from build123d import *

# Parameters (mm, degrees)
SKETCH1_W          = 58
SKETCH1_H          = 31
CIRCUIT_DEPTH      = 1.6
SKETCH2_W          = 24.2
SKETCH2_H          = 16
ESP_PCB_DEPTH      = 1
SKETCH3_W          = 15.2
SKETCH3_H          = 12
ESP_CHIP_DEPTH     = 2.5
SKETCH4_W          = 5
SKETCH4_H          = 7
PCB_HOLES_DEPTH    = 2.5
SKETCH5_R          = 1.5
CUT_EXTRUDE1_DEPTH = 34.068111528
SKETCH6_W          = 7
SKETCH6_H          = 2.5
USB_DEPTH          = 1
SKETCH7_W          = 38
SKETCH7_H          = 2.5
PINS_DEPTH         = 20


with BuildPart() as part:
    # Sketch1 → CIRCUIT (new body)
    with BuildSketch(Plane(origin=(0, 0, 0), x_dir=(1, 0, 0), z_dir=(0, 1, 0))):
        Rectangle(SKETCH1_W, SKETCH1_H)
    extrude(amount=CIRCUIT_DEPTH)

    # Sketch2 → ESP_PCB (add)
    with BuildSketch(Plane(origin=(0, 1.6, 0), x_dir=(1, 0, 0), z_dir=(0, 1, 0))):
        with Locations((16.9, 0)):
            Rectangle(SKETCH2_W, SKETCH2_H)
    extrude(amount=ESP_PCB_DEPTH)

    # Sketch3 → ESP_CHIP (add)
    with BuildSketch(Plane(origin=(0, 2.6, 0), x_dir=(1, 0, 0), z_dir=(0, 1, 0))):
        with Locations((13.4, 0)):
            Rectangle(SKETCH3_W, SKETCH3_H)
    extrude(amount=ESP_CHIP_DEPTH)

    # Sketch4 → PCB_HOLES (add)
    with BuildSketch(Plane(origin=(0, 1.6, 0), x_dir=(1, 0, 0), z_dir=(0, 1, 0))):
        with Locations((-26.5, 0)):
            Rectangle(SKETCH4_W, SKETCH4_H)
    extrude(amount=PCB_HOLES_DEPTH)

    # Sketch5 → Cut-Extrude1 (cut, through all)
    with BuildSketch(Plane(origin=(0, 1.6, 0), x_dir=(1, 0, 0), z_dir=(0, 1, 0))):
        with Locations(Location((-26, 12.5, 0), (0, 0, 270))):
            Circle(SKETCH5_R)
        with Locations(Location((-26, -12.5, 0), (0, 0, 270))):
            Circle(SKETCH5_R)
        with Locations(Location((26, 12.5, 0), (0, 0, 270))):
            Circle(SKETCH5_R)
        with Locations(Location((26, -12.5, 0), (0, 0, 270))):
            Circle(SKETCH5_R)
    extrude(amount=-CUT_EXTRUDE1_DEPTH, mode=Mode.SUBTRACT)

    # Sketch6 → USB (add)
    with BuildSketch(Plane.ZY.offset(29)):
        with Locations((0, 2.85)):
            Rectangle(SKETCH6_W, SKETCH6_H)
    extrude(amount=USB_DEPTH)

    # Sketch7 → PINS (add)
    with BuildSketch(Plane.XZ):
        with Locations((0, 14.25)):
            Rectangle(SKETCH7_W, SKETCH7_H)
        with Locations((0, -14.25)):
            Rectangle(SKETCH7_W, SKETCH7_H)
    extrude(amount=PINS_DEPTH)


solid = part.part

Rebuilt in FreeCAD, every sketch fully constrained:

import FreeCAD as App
import Part
import Sketcher

doc = App.newDocument("Part")
body = doc.addObject("PartDesign::Body", "Body")

# Sketch on XZ plane
sketch1 = body.newObject("Sketcher::SketchObject", "Sketch")
sketch1.AttachmentSupport = (doc.getObject("XZ_Plane"), [""])
sketch1.MapMode = "FlatFace"
sketch1.addGeometry([
    Part.LineSegment(App.Vector(-29, -16, 0), App.Vector(-29, 16, 0)),
    Part.LineSegment(App.Vector(-29, 16, 0), App.Vector(29, 16, 0)),
    Part.LineSegment(App.Vector(29, 16, 0), App.Vector(29, -16, 0)),
    Part.LineSegment(App.Vector(29, -16, 0), App.Vector(-29, -16, 0)),
], False)
sketch1.addConstraint([
    Sketcher.Constraint("Coincident", 0, 2, 1, 1),
    Sketcher.Constraint("Coincident", 1, 2, 2, 1),
    Sketcher.Constraint("Coincident", 2, 2, 3, 1),
    Sketcher.Constraint("Coincident", 3, 2, 0, 1),
    Sketcher.Constraint("Vertical", 0),
    Sketcher.Constraint("Horizontal", 1),
    Sketcher.Constraint("Vertical", 2),
    Sketcher.Constraint("Horizontal", 3),
    Sketcher.Constraint("Symmetric", 0, 2, 2, 2, -1, 1),
    Sketcher.Constraint("DistanceX", 1, 1, 1, 2, 58.0),
    Sketcher.Constraint("DistanceY", 0, 1, 0, 2, 31.0),
])
pad1 = body.newObject("PartDesign::Pad", "Pad")
pad1.Profile = sketch1
pad1.Length = 1.6
pad1.Reversed = True

# Sketch on XZ plane
sketch2 = body.newObject("Sketcher::SketchObject", "Sketch001")
sketch2.AttachmentSupport = (doc.getObject("XZ_Plane"), [""])
sketch2.MapMode = "FlatFace"
sketch2.AttachmentOffset = App.Placement(App.Vector(0, 0, -1.6), App.Rotation())
sketch2.addGeometry([
    Part.LineSegment(App.Vector(5, -8, 0), App.Vector(5, 8, 0)),
    Part.LineSegment(App.Vector(5, 8, 0), App.Vector(29, 8, 0)),
    Part.LineSegment(App.Vector(29, 8, 0), App.Vector(29, -8, 0)),
    Part.LineSegment(App.Vector(29, -8, 0), App.Vector(5, -8, 0)),
], False)
sketch2.addConstraint([
    Sketcher.Constraint("Coincident", 0, 2, 1, 1),
    Sketcher.Constraint("Coincident", 1, 2, 2, 1),
    Sketcher.Constraint("Coincident", 2, 2, 3, 1),
    Sketcher.Constraint("Coincident", 3, 2, 0, 1),
    Sketcher.Constraint("Vertical", 0),
    Sketcher.Constraint("Horizontal", 1),
    Sketcher.Constraint("Vertical", 2),
    Sketcher.Constraint("Horizontal", 3),
    Sketcher.Constraint("DistanceY", 0, 1, 0, 2, 16.0),
    Sketcher.Constraint("DistanceX", 1, 1, 1, 2, 24.2),
    Sketcher.Constraint("DistanceY", -1, 1, 0, 2, 8.0),
    Sketcher.Constraint("DistanceX", -1, 1, 1, 2, 29.0),
])
pad2 = body.newObject("PartDesign::Pad", "Pad001")
pad2.Profile = sketch2
pad2.Length = 1
pad2.Reversed = True

# Sketch on XZ plane
sketch3 = body.newObject("Sketcher::SketchObject", "Sketch002")
sketch3.AttachmentSupport = (doc.getObject("XZ_Plane"), [""])
sketch3.MapMode = "FlatFace"
sketch3.AttachmentOffset = App.Placement(App.Vector(0, 0, -2.6), App.Rotation())
sketch3.addGeometry([
    Part.LineSegment(App.Vector(6, -6, 0), App.Vector(6, 6, 0)),
    Part.LineSegment(App.Vector(6, 6, 0), App.Vector(21, 6, 0)),
    Part.LineSegment(App.Vector(21, 6, 0), App.Vector(21, -6, 0)),
    Part.LineSegment(App.Vector(21, -6, 0), App.Vector(6, -6, 0)),
], False)
sketch3.addConstraint([
    Sketcher.Constraint("Coincident", 0, 2, 1, 1),
    Sketcher.Constraint("Coincident", 1, 2, 2, 1),
    Sketcher.Constraint("Coincident", 2, 2, 3, 1),
    Sketcher.Constraint("Coincident", 3, 2, 0, 1),
    Sketcher.Constraint("Vertical", 0),
    Sketcher.Constraint("Horizontal", 1),
    Sketcher.Constraint("Vertical", 2),
    Sketcher.Constraint("Horizontal", 3),
    Sketcher.Constraint("DistanceY", 0, 1, 0, 2, 12.0),
    Sketcher.Constraint("DistanceX", 1, 1, 1, 2, 15.2),
    Sketcher.Constraint("DistanceY", -1, 1, 0, 2, 6.0),
    Sketcher.Constraint("DistanceX", -1, 1, 1, 2, 21.0),
])
pad3 = body.newObject("PartDesign::Pad", "Pad002")
pad3.Profile = sketch3
pad3.Length = 2.5
pad3.Reversed = True

# Sketch on XZ plane
sketch4 = body.newObject("Sketcher::SketchObject", "Sketch003")
sketch4.AttachmentSupport = (doc.getObject("XZ_Plane"), [""])
sketch4.MapMode = "FlatFace"
sketch4.AttachmentOffset = App.Placement(App.Vector(0, 0, -1.6), App.Rotation())
sketch4.addGeometry([
    Part.LineSegment(App.Vector(-29, -4, 0), App.Vector(-29, 4, 0)),
    Part.LineSegment(App.Vector(-29, 4, 0), App.Vector(-24, 4, 0)),
    Part.LineSegment(App.Vector(-24, 4, 0), App.Vector(-24, -4, 0)),
    Part.LineSegment(App.Vector(-24, -4, 0), App.Vector(-29, -4, 0)),
], False)
sketch4.addConstraint([
    Sketcher.Constraint("Coincident", 0, 2, 1, 1),
    Sketcher.Constraint("Coincident", 1, 2, 2, 1),
    Sketcher.Constraint("Coincident", 2, 2, 3, 1),
    Sketcher.Constraint("Coincident", 3, 2, 0, 1),
    Sketcher.Constraint("Vertical", 0),
    Sketcher.Constraint("Horizontal", 1),
    Sketcher.Constraint("Vertical", 2),
    Sketcher.Constraint("Horizontal", 3),
    Sketcher.Constraint("DistanceX", 1, 1, 1, 2, 5.0),
    Sketcher.Constraint("DistanceY", 0, 1, 0, 2, 7.0),
    Sketcher.Constraint("DistanceX", 0, 2, -1, 1, 29.0),
    Sketcher.Constraint("DistanceY", -1, 1, 0, 2, 3.5),
])
pad4 = body.newObject("PartDesign::Pad", "Pad003")
pad4.Profile = sketch4
pad4.Length = 2.5
pad4.Reversed = True

# Sketch on XZ plane
sketch5 = body.newObject("Sketcher::SketchObject", "Sketch004")
sketch5.AttachmentSupport = (doc.getObject("XZ_Plane"), [""])
sketch5.MapMode = "FlatFace"
sketch5.AttachmentOffset = App.Placement(App.Vector(0, 0, -1.6), App.Rotation())
sketch5.addGeometry([
    Part.Circle(App.Vector(-26, -12.5, 0), App.Vector(0, 0, 1), 1.5),
    Part.Circle(App.Vector(-26, 12.5, 0), App.Vector(0, 0, 1), 1.5),
    Part.Circle(App.Vector(26, -12.5, 0), App.Vector(0, 0, 1), 1.5),
    Part.Circle(App.Vector(26, 12.5, 0), App.Vector(0, 0, 1), 1.5),
], False)
sketch5.addConstraint([
    Sketcher.Constraint("Equal", 0, 1),
    Sketcher.Constraint("Equal", 1, 2),
    Sketcher.Constraint("Equal", 2, 3),
    Sketcher.Constraint("Symmetric", 1, 3, 2, 3, -1, 1),
    Sketcher.Constraint("Symmetric", 0, 3, 3, 3, -1, 1),
    Sketcher.Constraint("Symmetric", 0, 3, 2, 3, -2),
    Sketcher.Constraint("Diameter", 0, 3.0),
    Sketcher.Constraint("DistanceX", 0, 3, -1, 1, 26.0),
    Sketcher.Constraint("DistanceY", 0, 3, 1, 3, 25.0),
])
pocket1 = body.newObject("PartDesign::Pocket", "Pocket")
pocket1.Profile = sketch5
pocket1.Type = "ThroughAll"
pocket1.Reversed = True

# Sketch on YZ plane
sketch6 = body.newObject("Sketcher::SketchObject", "Sketch005")
sketch6.AttachmentSupport = (doc.getObject("YZ_Plane"), [""])
sketch6.MapMode = "FlatFace"
sketch6.AttachmentOffset = App.Placement(App.Vector(0, 0, -29), App.Rotation())
sketch6.addGeometry([
    Part.LineSegment(App.Vector(4.1, -3.5, 0), App.Vector(1.6, -3.5, 0)),
    Part.LineSegment(App.Vector(1.6, -3.5, 0), App.Vector(1.6, 3.5, 0)),
    Part.LineSegment(App.Vector(1.6, 3.5, 0), App.Vector(4.1, 3.5, 0)),
    Part.LineSegment(App.Vector(4.1, 3.5, 0), App.Vector(4.1, -3.5, 0)),
], False)
sketch6.addConstraint([
    Sketcher.Constraint("Coincident", 0, 2, 1, 1),
    Sketcher.Constraint("Coincident", 1, 2, 2, 1),
    Sketcher.Constraint("Coincident", 2, 2, 3, 1),
    Sketcher.Constraint("Coincident", 3, 2, 0, 1),
    Sketcher.Constraint("Horizontal", 0),
    Sketcher.Constraint("Vertical", 1),
    Sketcher.Constraint("Horizontal", 2),
    Sketcher.Constraint("Vertical", 3),
    Sketcher.Constraint("DistanceY", 1, 1, 1, 2, 7.0),
    Sketcher.Constraint("DistanceX", 0, 2, 0, 1, 2.5),
    Sketcher.Constraint("DistanceX", -1, 1, 0, 2, 1.6),
    Sketcher.Constraint("DistanceY", 0, 2, -1, 1, 3.5),
])
pad5 = body.newObject("PartDesign::Pad", "Pad004")
pad5.Profile = sketch6
pad5.Length = 1
pad5.Reversed = True

# Sketch on XZ plane
sketch7 = body.newObject("Sketcher::SketchObject", "Sketch006")
sketch7.AttachmentSupport = (doc.getObject("XZ_Plane"), [""])
sketch7.MapMode = "FlatFace"
sketch7.addGeometry([
    Part.LineSegment(App.Vector(-19, 15.5, 0), App.Vector(-19, 13, 0)),  # 0
    Part.LineSegment(App.Vector(-19, 13, 0), App.Vector(19, 13, 0)),  # 1
    Part.LineSegment(App.Vector(19, 13, 0), App.Vector(19, 15.5, 0)),  # 2
    Part.LineSegment(App.Vector(19, 15.5, 0), App.Vector(-19, 15.5, 0)),  # 3
    Part.LineSegment(App.Vector(-19, -13, 0), App.Vector(-19, -15.5, 0)),  # 4
    Part.LineSegment(App.Vector(-19, -15.5, 0), App.Vector(19, -15.5, 0)),  # 5
    Part.LineSegment(App.Vector(19, -15.5, 0), App.Vector(19, -13, 0)),  # 6
    Part.LineSegment(App.Vector(19, -13, 0), App.Vector(-19, -13, 0)),  # 7
], False)
sketch7.addConstraint([
    Sketcher.Constraint("Coincident", 0, 2, 1, 1),
    Sketcher.Constraint("Coincident", 1, 2, 2, 1),
    Sketcher.Constraint("Coincident", 2, 2, 3, 1),
    Sketcher.Constraint("Coincident", 3, 2, 0, 1),
    Sketcher.Constraint("Coincident", 4, 2, 5, 1),
    Sketcher.Constraint("Coincident", 5, 2, 6, 1),
    Sketcher.Constraint("Coincident", 6, 2, 7, 1),
    Sketcher.Constraint("Coincident", 7, 2, 4, 1),
    Sketcher.Constraint("Vertical", 0),
    Sketcher.Constraint("Horizontal", 1),
    Sketcher.Constraint("Vertical", 2),
    Sketcher.Constraint("Horizontal", 3),
    Sketcher.Constraint("Vertical", 4),
    Sketcher.Constraint("Horizontal", 5),
    Sketcher.Constraint("Vertical", 6),
    Sketcher.Constraint("Horizontal", 7),
    Sketcher.Constraint("Symmetric", 2, 2, 4, 2, -1, 1),
    Sketcher.Constraint("Symmetric", 0, 2, 6, 2, -1, 1),
    Sketcher.Constraint("Vertical", 3, 2, 4, 2),
    Sketcher.Constraint("DistanceX", 1, 1, 1, 2, 38.0),
    Sketcher.Constraint("DistanceY", 0, 2, 0, 1, 2.5),
    Sketcher.Constraint("DistanceY", -1, 1, 0, 2, 13.0),
])
pad6 = body.newObject("PartDesign::Pad", "Pad005")
pad6.Profile = sketch7
pad6.Length = 20

doc.recompute()
